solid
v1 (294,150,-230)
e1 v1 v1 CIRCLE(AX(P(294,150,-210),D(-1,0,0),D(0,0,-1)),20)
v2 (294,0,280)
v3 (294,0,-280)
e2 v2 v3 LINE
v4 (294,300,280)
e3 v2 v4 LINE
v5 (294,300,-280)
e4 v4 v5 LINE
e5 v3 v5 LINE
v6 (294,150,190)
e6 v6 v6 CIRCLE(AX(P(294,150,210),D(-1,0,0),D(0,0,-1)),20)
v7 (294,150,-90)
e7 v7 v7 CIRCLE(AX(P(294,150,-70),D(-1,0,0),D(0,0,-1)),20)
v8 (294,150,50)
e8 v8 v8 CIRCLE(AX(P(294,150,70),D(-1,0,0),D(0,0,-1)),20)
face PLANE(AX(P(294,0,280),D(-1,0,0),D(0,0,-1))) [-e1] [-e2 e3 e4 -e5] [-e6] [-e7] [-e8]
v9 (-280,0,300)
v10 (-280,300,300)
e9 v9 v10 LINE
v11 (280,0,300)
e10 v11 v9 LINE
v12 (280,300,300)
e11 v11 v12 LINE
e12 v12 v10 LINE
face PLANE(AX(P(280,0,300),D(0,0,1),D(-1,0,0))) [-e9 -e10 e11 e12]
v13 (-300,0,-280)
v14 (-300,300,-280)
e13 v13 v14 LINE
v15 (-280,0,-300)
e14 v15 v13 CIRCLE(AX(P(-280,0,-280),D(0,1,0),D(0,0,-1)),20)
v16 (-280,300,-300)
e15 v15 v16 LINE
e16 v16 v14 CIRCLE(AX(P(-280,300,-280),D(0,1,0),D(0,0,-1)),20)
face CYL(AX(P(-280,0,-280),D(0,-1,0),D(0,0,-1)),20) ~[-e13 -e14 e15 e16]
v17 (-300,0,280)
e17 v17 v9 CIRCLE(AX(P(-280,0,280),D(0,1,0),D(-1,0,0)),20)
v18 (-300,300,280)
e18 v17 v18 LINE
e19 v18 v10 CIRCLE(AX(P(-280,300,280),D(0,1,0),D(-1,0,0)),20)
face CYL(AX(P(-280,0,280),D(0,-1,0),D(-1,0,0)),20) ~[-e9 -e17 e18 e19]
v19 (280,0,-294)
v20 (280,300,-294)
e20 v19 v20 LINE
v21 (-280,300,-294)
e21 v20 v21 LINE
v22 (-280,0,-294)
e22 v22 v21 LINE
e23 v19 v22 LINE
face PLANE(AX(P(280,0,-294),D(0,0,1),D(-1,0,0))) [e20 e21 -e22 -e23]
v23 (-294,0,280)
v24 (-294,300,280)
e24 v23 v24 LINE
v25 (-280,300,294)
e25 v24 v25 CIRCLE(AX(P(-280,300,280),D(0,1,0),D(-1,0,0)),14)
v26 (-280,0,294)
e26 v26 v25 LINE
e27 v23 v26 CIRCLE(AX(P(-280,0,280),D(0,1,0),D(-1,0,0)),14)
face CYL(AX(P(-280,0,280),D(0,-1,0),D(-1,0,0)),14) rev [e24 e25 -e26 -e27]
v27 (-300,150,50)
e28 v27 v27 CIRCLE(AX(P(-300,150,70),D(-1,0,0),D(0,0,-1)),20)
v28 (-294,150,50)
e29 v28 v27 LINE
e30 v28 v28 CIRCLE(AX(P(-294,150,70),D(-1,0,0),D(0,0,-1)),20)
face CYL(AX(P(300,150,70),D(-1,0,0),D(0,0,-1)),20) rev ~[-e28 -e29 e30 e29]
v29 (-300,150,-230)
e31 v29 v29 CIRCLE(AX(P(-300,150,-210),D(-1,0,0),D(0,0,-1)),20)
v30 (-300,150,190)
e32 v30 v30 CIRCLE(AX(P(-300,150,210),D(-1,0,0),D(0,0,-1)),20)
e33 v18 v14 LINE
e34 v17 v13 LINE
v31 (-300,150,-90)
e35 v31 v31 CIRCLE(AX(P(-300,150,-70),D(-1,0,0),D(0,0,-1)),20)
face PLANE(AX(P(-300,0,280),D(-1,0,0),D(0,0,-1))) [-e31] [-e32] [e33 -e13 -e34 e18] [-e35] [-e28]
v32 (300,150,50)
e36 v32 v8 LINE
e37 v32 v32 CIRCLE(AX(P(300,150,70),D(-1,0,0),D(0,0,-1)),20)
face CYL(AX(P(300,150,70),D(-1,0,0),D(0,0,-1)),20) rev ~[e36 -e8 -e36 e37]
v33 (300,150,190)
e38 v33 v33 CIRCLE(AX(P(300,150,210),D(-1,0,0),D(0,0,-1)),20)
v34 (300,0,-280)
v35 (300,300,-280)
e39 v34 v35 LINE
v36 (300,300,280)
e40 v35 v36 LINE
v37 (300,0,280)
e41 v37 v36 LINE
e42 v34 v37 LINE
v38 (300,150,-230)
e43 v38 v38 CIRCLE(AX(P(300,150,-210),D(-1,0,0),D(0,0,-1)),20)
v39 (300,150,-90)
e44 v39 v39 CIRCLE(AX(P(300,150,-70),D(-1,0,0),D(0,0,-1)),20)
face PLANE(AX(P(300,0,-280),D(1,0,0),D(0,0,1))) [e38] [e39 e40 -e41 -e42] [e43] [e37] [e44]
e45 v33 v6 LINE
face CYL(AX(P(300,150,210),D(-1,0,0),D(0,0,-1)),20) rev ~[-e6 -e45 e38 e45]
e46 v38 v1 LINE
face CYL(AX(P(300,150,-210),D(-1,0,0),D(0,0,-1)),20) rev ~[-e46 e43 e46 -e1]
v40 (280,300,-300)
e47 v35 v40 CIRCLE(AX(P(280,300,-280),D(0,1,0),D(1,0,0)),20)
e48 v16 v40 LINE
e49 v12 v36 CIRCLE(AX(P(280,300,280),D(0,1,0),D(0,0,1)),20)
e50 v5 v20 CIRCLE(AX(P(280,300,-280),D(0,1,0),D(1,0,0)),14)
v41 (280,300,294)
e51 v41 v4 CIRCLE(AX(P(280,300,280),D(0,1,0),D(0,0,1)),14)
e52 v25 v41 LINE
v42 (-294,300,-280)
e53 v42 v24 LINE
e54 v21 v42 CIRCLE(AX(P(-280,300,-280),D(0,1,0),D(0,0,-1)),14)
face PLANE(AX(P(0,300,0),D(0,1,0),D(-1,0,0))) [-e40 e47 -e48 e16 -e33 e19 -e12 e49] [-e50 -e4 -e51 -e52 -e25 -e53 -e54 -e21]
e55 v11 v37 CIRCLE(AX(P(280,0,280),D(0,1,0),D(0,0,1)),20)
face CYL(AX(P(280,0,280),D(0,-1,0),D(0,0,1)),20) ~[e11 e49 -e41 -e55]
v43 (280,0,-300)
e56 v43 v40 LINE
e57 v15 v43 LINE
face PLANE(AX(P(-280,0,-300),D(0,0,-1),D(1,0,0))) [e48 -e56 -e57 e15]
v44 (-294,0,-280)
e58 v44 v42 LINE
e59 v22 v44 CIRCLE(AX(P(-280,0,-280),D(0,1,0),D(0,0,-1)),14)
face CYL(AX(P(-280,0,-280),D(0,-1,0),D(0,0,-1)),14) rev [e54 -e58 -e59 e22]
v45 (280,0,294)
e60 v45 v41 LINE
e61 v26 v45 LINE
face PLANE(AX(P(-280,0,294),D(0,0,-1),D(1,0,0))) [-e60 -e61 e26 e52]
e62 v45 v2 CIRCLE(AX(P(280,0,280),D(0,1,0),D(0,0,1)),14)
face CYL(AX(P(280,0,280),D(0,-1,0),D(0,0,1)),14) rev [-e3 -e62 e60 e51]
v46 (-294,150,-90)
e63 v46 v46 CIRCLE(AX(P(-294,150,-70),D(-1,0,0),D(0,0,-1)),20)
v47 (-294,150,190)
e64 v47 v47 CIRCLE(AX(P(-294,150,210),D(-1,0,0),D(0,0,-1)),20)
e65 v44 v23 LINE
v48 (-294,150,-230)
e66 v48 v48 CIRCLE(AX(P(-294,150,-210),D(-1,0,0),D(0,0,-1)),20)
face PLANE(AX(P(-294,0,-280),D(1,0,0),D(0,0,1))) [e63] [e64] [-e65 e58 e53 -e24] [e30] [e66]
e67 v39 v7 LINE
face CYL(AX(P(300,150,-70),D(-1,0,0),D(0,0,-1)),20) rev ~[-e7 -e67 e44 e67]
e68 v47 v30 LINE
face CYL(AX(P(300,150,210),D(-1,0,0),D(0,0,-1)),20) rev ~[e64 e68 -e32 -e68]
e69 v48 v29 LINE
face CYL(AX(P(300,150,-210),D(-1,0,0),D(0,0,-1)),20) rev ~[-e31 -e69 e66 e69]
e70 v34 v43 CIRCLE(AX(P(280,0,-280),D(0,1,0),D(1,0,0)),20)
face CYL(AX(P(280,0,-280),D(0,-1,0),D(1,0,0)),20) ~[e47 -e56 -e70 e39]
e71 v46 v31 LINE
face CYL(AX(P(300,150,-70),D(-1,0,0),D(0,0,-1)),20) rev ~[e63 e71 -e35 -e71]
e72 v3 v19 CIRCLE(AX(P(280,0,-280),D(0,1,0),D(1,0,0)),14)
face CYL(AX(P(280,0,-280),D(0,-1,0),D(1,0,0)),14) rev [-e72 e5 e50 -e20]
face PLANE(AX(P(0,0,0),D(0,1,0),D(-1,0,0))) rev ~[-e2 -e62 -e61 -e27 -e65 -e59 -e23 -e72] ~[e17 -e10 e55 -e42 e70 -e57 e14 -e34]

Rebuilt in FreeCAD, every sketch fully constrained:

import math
import FreeCAD as App
import Part
import Sketcher

V = App.Vector
Q = App.Units.Quantity

doc = App.newDocument("Part")
body = doc.addObject("PartDesign::Body", "Body")

# Sketch on XZ plane
sketch1 = doc.addObject("Sketcher::SketchObject", "Sketch")
body.addObject(sketch1)
sketch1.AttachmentSupport = (doc.XZ_Plane, [""])
sketch1.MapMode = "FlatFace"
sketch1.addGeometry([
    Part.LineSegment(V(-280, 300, 0), V(280, 300, 0)),  # 0
    Part.ArcOfCircle(Part.Circle(V(280, 280, 0), V(0, 0, 1), 20), math.radians(0), math.radians(90)),  # 1
    Part.LineSegment(V(300, 280, 0), V(300, -280, 0)),  # 2
    Part.ArcOfCircle(Part.Circle(V(280, -280, 0), V(0, 0, 1), 20), math.radians(-90), math.radians(0)),  # 3
    Part.LineSegment(V(280, -300, 0), V(-280, -300, 0)),  # 4
    Part.ArcOfCircle(Part.Circle(V(-280, -280, 0), V(0, 0, 1), 20), math.radians(180), math.radians(270)),  # 5
    Part.LineSegment(V(-300, -280, 0), V(-300, 280, 0)),  # 6
    Part.ArcOfCircle(Part.Circle(V(-280, 280, 0), V(0, 0, 1), 20), math.radians(90), math.radians(180)),  # 7
    Part.LineSegment(V(280, 294, 0), V(-280, 294, 0)),  # 8
    Part.ArcOfCircle(Part.Circle(V(-280, 280, 0), V(0, 0, 1), 14), math.radians(90), math.radians(180)),  # 9
    Part.LineSegment(V(-294, 280, 0), V(-294, -280, 0)),  # 10
    Part.ArcOfCircle(Part.Circle(V(-280, -280, 0), V(0, 0, 1), 14), math.radians(180), math.radians(270)),  # 11
    Part.LineSegment(V(-280, -294, 0), V(280, -294, 0)),  # 12
    Part.ArcOfCircle(Part.Circle(V(280, -280, 0), V(0, 0, 1), 14), math.radians(-90), math.radians(0)),  # 13
    Part.LineSegment(V(294, -280, 0), V(294, 280, 0)),  # 14
    Part.ArcOfCircle(Part.Circle(V(280, 280, 0), V(0, 0, 1), 14), math.radians(0), math.radians(90)),  # 15
], False)
sketch1.addConstraint([
    Sketcher.Constraint("Tangent", 0, 2, 1, 2),
    Sketcher.Constraint("Tangent", 1, 1, 2, 1),
    Sketcher.Constraint("Tangent", 2, 2, 3, 2),
    Sketcher.Constraint("Tangent", 3, 1, 4, 1),
    Sketcher.Constraint("Tangent", 4, 2, 5, 2),
    Sketcher.Constraint("Tangent", 5, 1, 6, 1),
    Sketcher.Constraint("Tangent", 6, 2, 7, 2),
    Sketcher.Constraint("Tangent", 7, 1, 0, 1),
    Sketcher.Constraint("Tangent", 8, 2, 9, 1),
    Sketcher.Constraint("Tangent", 9, 2, 10, 1),
    Sketcher.Constraint("Tangent", 10, 2, 11, 1),
    Sketcher.Constraint("Tangent", 11, 2, 12, 1),
    Sketcher.Constraint("Tangent", 12, 2, 13, 1),
    Sketcher.Constraint("Tangent", 13, 2, 14, 1),
    Sketcher.Constraint("Tangent", 14, 2, 15, 1),
    Sketcher.Constraint("Tangent", 15, 2, 8, 1),
    Sketcher.Constraint("Horizontal", 0),
    Sketcher.Constraint("Vertical", 2),
    Sketcher.Constraint("Horizontal", 4),
    Sketcher.Constraint("Vertical", 6),
    Sketcher.Constraint("Horizontal", 8),
    Sketcher.Constraint("Vertical", 10),
    Sketcher.Constraint("Horizontal", 12),
    Sketcher.Constraint("Vertical", 14),
    Sketcher.Constraint("Coincident", 9, 3, 7, 3),
    Sketcher.Constraint("Coincident", 11, 3, 5, 3),
    Sketcher.Constraint("Coincident", 13, 3, 3, 3),
    Sketcher.Constraint("Equal", 1, 3),
    Sketcher.Constraint("Equal", 3, 5),
    Sketcher.Constraint("Equal", 5, 7),
    Sketcher.Constraint("Equal", 13, 15),
    Sketcher.Constraint("Symmetric", 1, 3, 5, 3, -1, 1),
    Sketcher.Constraint("Equal", 12, 2),
    Sketcher.Constraint("Radius", 1, Q("20 mm")),
    Sketcher.Constraint("Radius", 9, Q("14 mm")),
    Sketcher.Constraint("DistanceX", 0, 1, 0, 2, Q("560 mm")),
])
pad1 = doc.addObject("PartDesign::Pad", "Pad")
body.addObject(pad1)
pad1.Profile = sketch1
pad1.Length = 300
pad1.Reversed = True

# Sketch on YZ plane
sketch2 = doc.addObject("Sketcher::SketchObject", "Sketch001")
body.addObject(sketch2)
sketch2.AttachmentSupport = (doc.YZ_Plane, [""])
sketch2.MapMode = "FlatFace"
sketch2.AttachmentOffset = App.Placement(V(0, 0, 300), App.Rotation())
sketch2.addGeometry([
    Part.Circle(V(150, 210, 0), V(0, 0, 1), 20),
    Part.Circle(V(150, 70, 0), V(0, 0, 1), 20),
    Part.Circle(V(150, -70, 0), V(0, 0, 1), 20),
    Part.Circle(V(150, -210, 0), V(0, 0, 1), 20),
], False)
sketch2.addConstraint([
    Sketcher.Constraint("Equal", 0, 1),
    Sketcher.Constraint("Equal", 1, 2),
    Sketcher.Constraint("Equal", 2, 3),
    Sketcher.Constraint("Symmetric", 1, 3, 2, 3, -1),
    Sketcher.Constraint("Symmetric", 0, 3, 3, 3, -1),
    Sketcher.Constraint("Vertical", 0, 3, 1, 3),
    Sketcher.Constraint("Diameter", 0, Q("40 mm")),
    Sketcher.Constraint("DistanceX", -1, 1, 0, 3, Q("150 mm")),
    Sketcher.Constraint("DistanceY", -1, 1, 0, 3, Q("210 mm")),
    Sketcher.Constraint("DistanceY", -1, 1, 1, 3, Q("70 mm")),
])
doc.recompute()
hole = doc.addObject("PartDesign::Hole", "Hole")
body.addObject(hole)
hole.Profile = sketch2
hole.ThreadType = "None"
hole.Diameter = 40
hole.DepthType = "ThroughAll"

doc.recompute()
